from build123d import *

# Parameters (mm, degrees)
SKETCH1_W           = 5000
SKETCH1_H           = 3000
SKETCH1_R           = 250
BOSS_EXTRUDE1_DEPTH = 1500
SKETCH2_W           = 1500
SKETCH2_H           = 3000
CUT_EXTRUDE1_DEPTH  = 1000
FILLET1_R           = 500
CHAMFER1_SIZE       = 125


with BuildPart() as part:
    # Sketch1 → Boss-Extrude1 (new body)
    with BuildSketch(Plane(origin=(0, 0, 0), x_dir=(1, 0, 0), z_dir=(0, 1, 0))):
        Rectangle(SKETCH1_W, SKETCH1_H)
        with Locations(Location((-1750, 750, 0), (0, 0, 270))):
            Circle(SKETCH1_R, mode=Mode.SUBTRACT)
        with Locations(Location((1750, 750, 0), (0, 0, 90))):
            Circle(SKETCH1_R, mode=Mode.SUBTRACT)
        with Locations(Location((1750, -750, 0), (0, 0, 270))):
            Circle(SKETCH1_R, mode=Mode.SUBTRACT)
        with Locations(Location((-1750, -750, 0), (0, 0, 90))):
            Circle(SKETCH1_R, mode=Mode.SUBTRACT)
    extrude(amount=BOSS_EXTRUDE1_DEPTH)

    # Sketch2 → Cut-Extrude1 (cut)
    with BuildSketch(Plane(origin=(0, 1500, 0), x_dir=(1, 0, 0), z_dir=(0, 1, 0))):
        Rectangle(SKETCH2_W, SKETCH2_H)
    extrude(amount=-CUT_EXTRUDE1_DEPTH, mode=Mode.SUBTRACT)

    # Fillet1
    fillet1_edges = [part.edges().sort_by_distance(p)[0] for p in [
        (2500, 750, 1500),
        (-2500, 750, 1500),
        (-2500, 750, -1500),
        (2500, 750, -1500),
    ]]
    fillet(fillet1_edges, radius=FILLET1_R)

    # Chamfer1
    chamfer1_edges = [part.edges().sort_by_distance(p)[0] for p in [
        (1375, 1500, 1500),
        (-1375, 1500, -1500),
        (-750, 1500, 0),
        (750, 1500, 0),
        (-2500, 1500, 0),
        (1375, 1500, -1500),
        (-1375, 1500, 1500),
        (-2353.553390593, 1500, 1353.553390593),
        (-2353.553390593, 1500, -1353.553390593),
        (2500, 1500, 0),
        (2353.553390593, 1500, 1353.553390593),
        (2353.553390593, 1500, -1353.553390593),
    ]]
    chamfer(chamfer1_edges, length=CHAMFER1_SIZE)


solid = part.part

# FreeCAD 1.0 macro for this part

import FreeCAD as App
import Part
import Sketcher
from FreeCAD import Vector


def edges_at(feature, points):
    """Names of the edges that pass closest to the given points."""
    edges = feature.Shape.Edges
    near = lambda p: min(range(len(edges)), key=lambda i: edges[i].distToShape(Part.Vertex(*p))[0])
    return sorted({f"Edge{near(p) + 1}" for p in points})


def add_polygon(sketch, points):
    """Adds a closed chain of lines whose ends are joined by coincident constraints."""
    first, n = sketch.GeometryCount, len(points)
    for a, b in zip(points, points[1:] + points[:1]):
        sketch.addGeometry(Part.LineSegment(App.Vector(*a, 0), App.Vector(*b, 0)), False)
    for i in range(n):
        sketch.addConstraint(Sketcher.Constraint("Coincident", first + i, 2, first + (i + 1) % n, 1))

doc = App.newDocument("Part")
body = doc.addObject("PartDesign::Body", "Body")

sketch1 = body.newObject("Sketcher::SketchObject", "Sketch")
sketch1.AttachmentSupport = (doc.getObject("XZ_Plane"), [""])
sketch1.MapMode = "FlatFace"
add_polygon(sketch1, [(-2500, -1500), (-2500, 1500), (2500, 1500), (2500, -1500)])
sketch1.addGeometry(Part.Circle(Vector(-1750, 750, 0), Vector(0, 0, 1), 250), False)
sketch1.addGeometry(Part.Circle(Vector(1750, 750, 0), Vector(0, 0, 1), 250), False)
sketch1.addGeometry(Part.Circle(Vector(-1750, -750, 0), Vector(0, 0, 1), 250), False)
sketch1.addGeometry(Part.Circle(Vector(1750, -750, 0), Vector(0, 0, 1), 250), False)
sketch1.addConstraint(Sketcher.Constraint("Vertical", 0))
sketch1.addConstraint(Sketcher.Constraint("Horizontal", 1))
sketch1.addConstraint(Sketcher.Constraint("Vertical", 2))
sketch1.addConstraint(Sketcher.Constraint("Horizontal", 3))
sketch1.addConstraint(Sketcher.Constraint("Equal", 4, 5))
sketch1.addConstraint(Sketcher.Constraint("Equal", 5, 6))
sketch1.addConstraint(Sketcher.Constraint("Equal", 6, 7))
sketch1.addConstraint(Sketcher.Constraint("Symmetric", 5, 3, 6, 3, -1, 1))
sketch1.addConstraint(Sketcher.Constraint("Symmetric", 4, 3, 7, 3, -1, 1))
sketch1.addConstraint(Sketcher.Constraint("Symmetric", 0, 2, 2, 2, -1, 1))
sketch1.addConstraint(Sketcher.Constraint("Symmetric", 4, 3, 5, 3, -2))
sketch1.addConstraint(Sketcher.Constraint("Diameter", 4, 500.0))
sketch1.addConstraint(Sketcher.Constraint("DistanceX", 1, 1, 1, 2, 5000.0))
sketch1.addConstraint(Sketcher.Constraint("DistanceY", 0, 1, 0, 2, 3000.0))
sketch1.addConstraint(Sketcher.Constraint("DistanceX", 4, 3, -1, 1, 1750.0))
sketch1.addConstraint(Sketcher.Constraint("DistanceY", -1, 1, 4, 3, 750.0))
pad1 = body.newObject("PartDesign::Pad", "Pad")
pad1.Profile = sketch1
pad1.Length = 1500
pad1.Reversed = True

sketch2 = body.newObject("Sketcher::SketchObject", "Sketch001")
sketch2.AttachmentSupport = (doc.getObject("XZ_Plane"), [""])
sketch2.MapMode = "FlatFace"
sketch2.AttachmentOffset = App.Placement(Vector(0, 0, -1500), App.Rotation())
add_polygon(sketch2, [(-750, -1500), (-750, 1500), (750, 1500), (750, -1500)])
sketch2.addConstraint(Sketcher.Constraint("Vertical", 0))
sketch2.addConstraint(Sketcher.Constraint("Horizontal", 1))
sketch2.addConstraint(Sketcher.Constraint("Vertical", 2))
sketch2.addConstraint(Sketcher.Constraint("Horizontal", 3))
sketch2.addConstraint(Sketcher.Constraint("Symmetric", 0, 2, 2, 2, -1, 1))
sketch2.addConstraint(Sketcher.Constraint("DistanceX", 1, 1, 1, 2, 1500.0))
sketch2.addConstraint(Sketcher.Constraint("DistanceY", 0, 1, 0, 2, 3000.0))
pocket1 = body.newObject("PartDesign::Pocket", "Pocket")
pocket1.Profile = sketch2
pocket1.Length = 1000
pocket1.Reversed = True
doc.recompute()

fillet = body.newObject("PartDesign::Fillet", "Fillet")
fillet.Base = (pocket1, edges_at(pocket1, [
    (2500, 750, 1500),
    (-2500, 750, 1500),
    (-2500, 750, -1500),
    (2500, 750, -1500),
]))
fillet.Radius = 500
doc.recompute()

chamfer = body.newObject("PartDesign::Chamfer", "Chamfer")
chamfer.Base = (fillet, edges_at(fillet, [
    (1375, 1500, 1500),
    (-1375, 1500, -1500),
    (-750, 1500, 0),
    (750, 1500, 0),
    (-2500, 1500, 0),
    (1375, 1500, -1500),
    (-1375, 1500, 1500),
    (-2353.553, 1500, 1353.553),
    (-2353.553, 1500, -1353.553),
    (2500, 1500, 0),
    (2353.553, 1500, 1353.553),
    (2353.553, 1500, -1353.553),
]))
chamfer.Size = 125

doc.recompute()
